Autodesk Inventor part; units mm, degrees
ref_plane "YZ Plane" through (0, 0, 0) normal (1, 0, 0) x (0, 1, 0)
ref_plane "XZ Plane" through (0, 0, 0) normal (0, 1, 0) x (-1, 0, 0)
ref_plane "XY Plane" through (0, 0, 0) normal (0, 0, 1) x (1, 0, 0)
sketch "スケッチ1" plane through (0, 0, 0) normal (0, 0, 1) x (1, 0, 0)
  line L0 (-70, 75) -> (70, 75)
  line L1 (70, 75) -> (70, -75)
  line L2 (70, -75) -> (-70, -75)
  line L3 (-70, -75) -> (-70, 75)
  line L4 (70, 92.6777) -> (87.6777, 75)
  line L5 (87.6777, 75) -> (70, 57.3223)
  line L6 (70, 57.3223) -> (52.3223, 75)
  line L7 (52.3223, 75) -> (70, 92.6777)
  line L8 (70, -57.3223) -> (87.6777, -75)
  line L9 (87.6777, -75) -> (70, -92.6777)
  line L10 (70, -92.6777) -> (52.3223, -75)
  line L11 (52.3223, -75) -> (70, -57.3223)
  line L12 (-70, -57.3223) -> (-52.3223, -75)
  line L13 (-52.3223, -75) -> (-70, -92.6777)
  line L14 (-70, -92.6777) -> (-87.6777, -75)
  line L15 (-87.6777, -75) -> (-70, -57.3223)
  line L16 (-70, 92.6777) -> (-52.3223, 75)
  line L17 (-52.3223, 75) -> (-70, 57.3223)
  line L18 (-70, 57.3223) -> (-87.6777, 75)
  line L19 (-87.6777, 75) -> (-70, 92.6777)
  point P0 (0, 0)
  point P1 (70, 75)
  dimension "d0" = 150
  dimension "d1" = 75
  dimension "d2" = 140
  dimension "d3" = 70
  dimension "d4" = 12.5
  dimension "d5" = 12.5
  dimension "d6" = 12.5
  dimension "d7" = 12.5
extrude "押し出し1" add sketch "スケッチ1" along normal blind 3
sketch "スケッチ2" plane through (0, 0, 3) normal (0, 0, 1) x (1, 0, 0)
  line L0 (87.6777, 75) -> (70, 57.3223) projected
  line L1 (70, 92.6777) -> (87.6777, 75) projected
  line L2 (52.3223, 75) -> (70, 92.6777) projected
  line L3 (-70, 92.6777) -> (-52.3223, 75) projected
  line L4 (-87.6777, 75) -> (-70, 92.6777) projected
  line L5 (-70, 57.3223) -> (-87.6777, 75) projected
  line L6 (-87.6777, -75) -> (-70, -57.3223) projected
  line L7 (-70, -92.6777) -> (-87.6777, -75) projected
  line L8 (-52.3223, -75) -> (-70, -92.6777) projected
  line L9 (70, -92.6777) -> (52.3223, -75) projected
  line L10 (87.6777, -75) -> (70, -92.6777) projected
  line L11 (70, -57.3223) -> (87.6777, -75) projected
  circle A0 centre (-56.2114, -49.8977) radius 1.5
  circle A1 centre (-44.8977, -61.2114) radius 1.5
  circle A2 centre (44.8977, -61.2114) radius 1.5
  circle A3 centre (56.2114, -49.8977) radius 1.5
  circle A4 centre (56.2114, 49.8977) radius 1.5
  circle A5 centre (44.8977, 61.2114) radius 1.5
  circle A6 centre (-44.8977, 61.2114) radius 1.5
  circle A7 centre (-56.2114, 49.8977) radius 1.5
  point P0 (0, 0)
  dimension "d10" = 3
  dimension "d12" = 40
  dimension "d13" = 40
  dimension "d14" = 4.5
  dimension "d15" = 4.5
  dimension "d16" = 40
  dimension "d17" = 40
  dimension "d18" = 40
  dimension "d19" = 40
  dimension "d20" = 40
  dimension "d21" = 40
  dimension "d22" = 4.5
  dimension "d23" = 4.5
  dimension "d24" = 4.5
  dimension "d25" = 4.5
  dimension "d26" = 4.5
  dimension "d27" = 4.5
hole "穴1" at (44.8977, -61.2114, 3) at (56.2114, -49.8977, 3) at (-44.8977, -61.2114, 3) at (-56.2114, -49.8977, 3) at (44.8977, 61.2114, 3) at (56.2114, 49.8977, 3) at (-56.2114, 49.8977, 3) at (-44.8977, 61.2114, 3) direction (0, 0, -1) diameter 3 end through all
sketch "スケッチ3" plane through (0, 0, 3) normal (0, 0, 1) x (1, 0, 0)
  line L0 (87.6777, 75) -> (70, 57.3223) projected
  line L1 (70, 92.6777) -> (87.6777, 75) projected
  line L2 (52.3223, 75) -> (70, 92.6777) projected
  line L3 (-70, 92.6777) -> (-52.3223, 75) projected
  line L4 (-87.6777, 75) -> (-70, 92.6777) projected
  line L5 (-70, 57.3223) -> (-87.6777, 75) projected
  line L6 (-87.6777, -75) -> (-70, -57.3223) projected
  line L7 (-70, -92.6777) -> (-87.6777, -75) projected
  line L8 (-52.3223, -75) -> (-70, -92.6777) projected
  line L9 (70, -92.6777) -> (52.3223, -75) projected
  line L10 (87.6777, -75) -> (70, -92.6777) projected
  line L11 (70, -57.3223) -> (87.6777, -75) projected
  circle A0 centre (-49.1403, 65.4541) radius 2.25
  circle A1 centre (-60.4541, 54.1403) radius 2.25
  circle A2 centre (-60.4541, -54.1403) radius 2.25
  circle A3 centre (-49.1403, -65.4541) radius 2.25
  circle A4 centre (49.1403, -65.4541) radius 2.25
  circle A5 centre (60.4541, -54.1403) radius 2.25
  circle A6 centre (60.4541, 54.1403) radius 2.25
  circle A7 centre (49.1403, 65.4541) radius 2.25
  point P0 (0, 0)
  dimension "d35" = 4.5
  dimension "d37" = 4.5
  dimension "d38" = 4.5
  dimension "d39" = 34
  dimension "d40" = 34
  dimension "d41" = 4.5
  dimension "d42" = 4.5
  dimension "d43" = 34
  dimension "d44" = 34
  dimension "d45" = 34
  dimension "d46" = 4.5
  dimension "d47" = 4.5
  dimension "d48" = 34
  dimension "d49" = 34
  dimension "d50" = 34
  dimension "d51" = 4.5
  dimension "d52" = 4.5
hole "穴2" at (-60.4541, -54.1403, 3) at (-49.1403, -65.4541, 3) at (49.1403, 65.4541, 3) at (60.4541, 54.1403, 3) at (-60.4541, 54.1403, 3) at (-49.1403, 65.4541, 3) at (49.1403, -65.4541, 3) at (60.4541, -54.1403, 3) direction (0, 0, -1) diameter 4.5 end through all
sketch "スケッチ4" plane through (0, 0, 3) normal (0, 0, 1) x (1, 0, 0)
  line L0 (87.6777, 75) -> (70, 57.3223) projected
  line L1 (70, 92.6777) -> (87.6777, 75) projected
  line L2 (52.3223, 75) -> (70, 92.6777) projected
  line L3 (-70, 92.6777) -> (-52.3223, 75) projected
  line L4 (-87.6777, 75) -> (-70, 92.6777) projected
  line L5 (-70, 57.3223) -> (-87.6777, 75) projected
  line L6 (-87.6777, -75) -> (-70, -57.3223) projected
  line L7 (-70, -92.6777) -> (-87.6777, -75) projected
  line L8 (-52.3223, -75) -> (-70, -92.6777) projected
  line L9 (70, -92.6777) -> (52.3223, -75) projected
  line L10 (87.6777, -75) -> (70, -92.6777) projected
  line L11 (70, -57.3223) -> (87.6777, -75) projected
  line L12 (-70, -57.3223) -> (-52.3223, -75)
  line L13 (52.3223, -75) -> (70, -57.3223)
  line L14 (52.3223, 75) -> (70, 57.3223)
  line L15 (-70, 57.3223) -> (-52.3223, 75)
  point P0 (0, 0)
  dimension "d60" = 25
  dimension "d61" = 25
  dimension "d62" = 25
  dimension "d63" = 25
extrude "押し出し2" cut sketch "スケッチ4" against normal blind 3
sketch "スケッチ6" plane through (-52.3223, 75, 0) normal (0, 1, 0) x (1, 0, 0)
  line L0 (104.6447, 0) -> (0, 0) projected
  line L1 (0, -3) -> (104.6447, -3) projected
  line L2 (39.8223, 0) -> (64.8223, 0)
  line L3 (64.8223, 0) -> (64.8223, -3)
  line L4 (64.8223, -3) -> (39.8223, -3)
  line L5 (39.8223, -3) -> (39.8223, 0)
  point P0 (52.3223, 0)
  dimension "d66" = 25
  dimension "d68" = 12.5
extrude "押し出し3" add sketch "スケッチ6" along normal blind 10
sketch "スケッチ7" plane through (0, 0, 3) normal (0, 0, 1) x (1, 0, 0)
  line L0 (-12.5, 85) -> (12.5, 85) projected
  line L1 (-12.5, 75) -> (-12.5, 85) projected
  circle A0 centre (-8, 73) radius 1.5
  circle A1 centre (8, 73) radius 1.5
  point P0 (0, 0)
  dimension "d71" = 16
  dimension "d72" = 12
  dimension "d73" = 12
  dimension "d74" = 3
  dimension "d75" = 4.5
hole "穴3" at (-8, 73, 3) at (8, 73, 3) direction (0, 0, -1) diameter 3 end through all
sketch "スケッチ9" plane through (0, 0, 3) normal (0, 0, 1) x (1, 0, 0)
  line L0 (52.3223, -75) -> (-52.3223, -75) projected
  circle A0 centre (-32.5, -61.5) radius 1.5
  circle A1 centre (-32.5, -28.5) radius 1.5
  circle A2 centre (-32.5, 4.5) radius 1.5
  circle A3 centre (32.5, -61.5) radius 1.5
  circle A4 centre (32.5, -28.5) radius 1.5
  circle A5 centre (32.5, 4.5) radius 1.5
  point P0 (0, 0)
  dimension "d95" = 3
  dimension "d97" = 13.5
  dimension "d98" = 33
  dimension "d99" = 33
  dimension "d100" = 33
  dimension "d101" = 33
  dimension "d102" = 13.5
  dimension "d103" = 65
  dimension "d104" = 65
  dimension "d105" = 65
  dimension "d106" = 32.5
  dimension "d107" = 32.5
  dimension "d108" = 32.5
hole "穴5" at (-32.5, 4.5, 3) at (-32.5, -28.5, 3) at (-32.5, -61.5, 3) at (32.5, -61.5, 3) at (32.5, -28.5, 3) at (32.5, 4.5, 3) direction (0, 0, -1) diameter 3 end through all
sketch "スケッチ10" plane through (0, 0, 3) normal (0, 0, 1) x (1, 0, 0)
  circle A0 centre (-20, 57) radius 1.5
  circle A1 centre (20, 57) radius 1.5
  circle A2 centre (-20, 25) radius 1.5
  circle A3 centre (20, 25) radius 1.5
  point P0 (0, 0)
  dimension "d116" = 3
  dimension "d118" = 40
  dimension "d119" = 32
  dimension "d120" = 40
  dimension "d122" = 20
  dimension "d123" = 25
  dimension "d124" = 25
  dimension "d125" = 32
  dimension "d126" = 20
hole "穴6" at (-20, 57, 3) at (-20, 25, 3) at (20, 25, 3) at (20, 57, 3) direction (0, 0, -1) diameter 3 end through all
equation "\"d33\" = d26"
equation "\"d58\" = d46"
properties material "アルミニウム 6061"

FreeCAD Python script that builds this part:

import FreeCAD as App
import Part
import Sketcher
from FreeCAD import Vector


def add_polygon(sketch, points):
    """Adds a closed chain of lines whose ends are joined by coincident constraints."""
    first, n = sketch.GeometryCount, len(points)
    for a, b in zip(points, points[1:] + points[:1]):
        sketch.addGeometry(Part.LineSegment(App.Vector(*a, 0), App.Vector(*b, 0)), False)
    for i in range(n):
        sketch.addConstraint(Sketcher.Constraint("Coincident", first + i, 2, first + (i + 1) % n, 1))

doc = App.newDocument("Part")
body = doc.addObject("PartDesign::Body", "Body")

# Sketch on XY plane
sketch1 = body.newObject("Sketcher::SketchObject", "Sketch")
sketch1.AttachmentSupport = (doc.getObject("XY_Plane"), [""])
sketch1.MapMode = "FlatFace"
add_polygon(sketch1, [(-88, 75), (-70, 57), (-70, -57), (-88, -75), (-70, -93), (-52, -75), (52, -75), (70, -93), (88, -75), (70, -57), (70, 57), (88, 75), (70, 93), (52, 75), (-52, 75), (-70, 93)])  # lines 0-15
sketch1.addConstraint(Sketcher.Constraint("Vertical", 1))
sketch1.addConstraint(Sketcher.Constraint("Horizontal", 5))
sketch1.addConstraint(Sketcher.Constraint("Vertical", 9))
sketch1.addConstraint(Sketcher.Constraint("Horizontal", 13))
sketch1.addConstraint(Sketcher.Constraint("Symmetric", 0, 2, 8, 2, -1, 1))
sketch1.addConstraint(Sketcher.Constraint("Symmetric", 2, 2, 10, 2, -1, 1))
sketch1.addConstraint(Sketcher.Constraint("Symmetric", 3, 2, 11, 2, -1, 1))
sketch1.addConstraint(Sketcher.Constraint("Symmetric", 4, 2, 12, 2, -1, 1))
sketch1.addConstraint(Sketcher.Constraint("Symmetric", 6, 2, 14, 2, -1, 1))
sketch1.addConstraint(Sketcher.Constraint("Symmetric", 7, 2, 15, 2, -1, 1))
sketch1.addConstraint(Sketcher.Constraint("Symmetric", 3, 2, 6, 2, -2))
sketch1.addConstraint(Sketcher.Constraint("Symmetric", 2, 2, 7, 2, -2))
sketch1.addConstraint(Sketcher.Constraint("Perpendicular", 0, 2))
sketch1.addConstraint(Sketcher.Constraint("Perpendicular", 2, 3))
sketch1.addConstraint(Sketcher.Constraint("Perpendicular", 3, 4))
sketch1.addConstraint(Sketcher.Constraint("Perpendicular", 4, 6))
sketch1.addConstraint(Sketcher.Constraint("Perpendicular", 6, 7))
sketch1.addConstraint(Sketcher.Constraint("Perpendicular", 8, 10))
sketch1.addConstraint(Sketcher.Constraint("Perpendicular", 12, 14))
sketch1.addConstraint(Sketcher.Constraint("Horizontal", 2, 2, 4, 2))
sketch1.addConstraint(Sketcher.Constraint("Vertical", 1, 2, 3, 2))
sketch1.addConstraint(Sketcher.Constraint("DistanceX", 0, 2, -1, 1, 70.0))
sketch1.addConstraint(Sketcher.Constraint("DistanceY", 2, 2, -1, 1, 75.0))
sketch1.addConstraint(Sketcher.Constraint("Distance", 0, 25.0))
pad1 = body.newObject("PartDesign::Pad", "Pad")
pad1.Profile = sketch1
pad1.Length = 3

# Sketch on XY plane
sketch2 = body.newObject("Sketcher::SketchObject", "Sketch001")
sketch2.AttachmentSupport = (doc.getObject("XY_Plane"), [""])
sketch2.MapMode = "FlatFace"
sketch2.AttachmentOffset = App.Placement(Vector(0, 0, 3), App.Rotation())
sketch2.addGeometry(Part.Circle(Vector(44.9, -61.2, 0), Vector(0, 0, 1), 1.5), False)
sketch2.addGeometry(Part.Circle(Vector(56.2, -49.9, 0), Vector(0, 0, 1), 1.5), False)
sketch2.addGeometry(Part.Circle(Vector(-44.9, -61.2, 0), Vector(0, 0, 1), 1.5), False)
sketch2.addGeometry(Part.Circle(Vector(-56.2, -49.9, 0), Vector(0, 0, 1), 1.5), False)
sketch2.addGeometry(Part.Circle(Vector(44.9, 61.2, 0), Vector(0, 0, 1), 1.5), False)
sketch2.addGeometry(Part.Circle(Vector(56.2, 49.9, 0), Vector(0, 0, 1), 1.5), False)
sketch2.addGeometry(Part.Circle(Vector(-56.2, 49.9, 0), Vector(0, 0, 1), 1.5), False)
sketch2.addGeometry(Part.Circle(Vector(-44.9, 61.2, 0), Vector(0, 0, 1), 1.5), False)
sketch2.addConstraint(Sketcher.Constraint("Equal", 0, 1))
sketch2.addConstraint(Sketcher.Constraint("Equal", 1, 2))
sketch2.addConstraint(Sketcher.Constraint("Equal", 2, 3))
sketch2.addConstraint(Sketcher.Constraint("Equal", 3, 4))
sketch2.addConstraint(Sketcher.Constraint("Equal", 4, 5))
sketch2.addConstraint(Sketcher.Constraint("Equal", 5, 6))
sketch2.addConstraint(Sketcher.Constraint("Equal", 6, 7))
sketch2.addConstraint(Sketcher.Constraint("Symmetric", 2, 3, 4, 3, -1, 1))
sketch2.addConstraint(Sketcher.Constraint("Symmetric", 3, 3, 5, 3, -1, 1))
sketch2.addConstraint(Sketcher.Constraint("Symmetric", 1, 3, 6, 3, -1, 1))
sketch2.addConstraint(Sketcher.Constraint("Symmetric", 0, 3, 7, 3, -1, 1))
sketch2.addConstraint(Sketcher.Constraint("Symmetric", 0, 3, 2, 3, -2))
sketch2.addConstraint(Sketcher.Constraint("Symmetric", 1, 3, 3, 3, -2))
sketch2.addConstraint(Sketcher.Constraint("Diameter", 0, 3.0))
sketch2.addConstraint(Sketcher.Constraint("DistanceX", 2, 3, 1, 3, 101.109))
sketch2.addConstraint(Sketcher.Constraint("DistanceY", 1, 3, 4, 3, 111.109))
sketch2.addConstraint(Sketcher.Constraint("DistanceX", -1, 1, 0, 3, 44.8977))
sketch2.addConstraint(Sketcher.Constraint("DistanceY", 0, 3, -1, 1, 61.2114))
doc.recompute()
hole = body.newObject("PartDesign::Hole", "Hole")
hole.Profile = sketch2
hole.ThreadType = "None"
hole.Diameter = 3
hole.DepthType = "ThroughAll"

# Sketch on XY plane
sketch3 = body.newObject("Sketcher::SketchObject", "Sketch002")
sketch3.AttachmentSupport = (doc.getObject("XY_Plane"), [""])
sketch3.MapMode = "FlatFace"
sketch3.AttachmentOffset = App.Placement(Vector(0, 0, 3), App.Rotation())
sketch3.addGeometry(Part.Circle(Vector(-60.5, -54.1, 0), Vector(0, 0, 1), 2.2), False)
sketch3.addGeometry(Part.Circle(Vector(-49.1, -65.5, 0), Vector(0, 0, 1), 2.2), False)
sketch3.addGeometry(Part.Circle(Vector(49.1, 65.5, 0), Vector(0, 0, 1), 2.2), False)
sketch3.addGeometry(Part.Circle(Vector(60.5, 54.1, 0), Vector(0, 0, 1), 2.2), False)
sketch3.addGeometry(Part.Circle(Vector(-60.5, 54.1, 0), Vector(0, 0, 1), 2.2), False)
sketch3.addGeometry(Part.Circle(Vector(-49.1, 65.5, 0), Vector(0, 0, 1), 2.2), False)
sketch3.addGeometry(Part.Circle(Vector(49.1, -65.5, 0), Vector(0, 0, 1), 2.2), False)
sketch3.addGeometry(Part.Circle(Vector(60.5, -54.1, 0), Vector(0, 0, 1), 2.2), False)
sketch3.addConstraint(Sketcher.Constraint("Equal", 0, 1))
sketch3.addConstraint(Sketcher.Constraint("Equal", 1, 2))
sketch3.addConstraint(Sketcher.Constraint("Equal", 2, 3))
sketch3.addConstraint(Sketcher.Constraint("Equal", 3, 4))
sketch3.addConstraint(Sketcher.Constraint("Equal", 4, 5))
sketch3.addConstraint(Sketcher.Constraint("Equal", 5, 6))
sketch3.addConstraint(Sketcher.Constraint("Equal", 6, 7))
sketch3.addConstraint(Sketcher.Constraint("Symmetric", 1, 3, 2, 3, -1, 1))
sketch3.addConstraint(Sketcher.Constraint("Symmetric", 0, 3, 3, 3, -1, 1))
sketch3.addConstraint(Sketcher.Constraint("Symmetric", 5, 3, 6, 3, -1, 1))
sketch3.addConstraint(Sketcher.Constraint("Symmetric", 4, 3, 7, 3, -1, 1))
sketch3.addConstraint(Sketcher.Constraint("Symmetric", 3, 3, 4, 3, -2))
sketch3.addConstraint(Sketcher.Constraint("Symmetric", 2, 3, 5, 3, -2))
sketch3.addConstraint(Sketcher.Constraint("Diameter", 0, 4.5))
sketch3.addConstraint(Sketcher.Constraint("DistanceX", 0, 3, -1, 1, 60.454))
sketch3.addConstraint(Sketcher.Constraint("DistanceY", 1, 3, -1, 1, 65.454))
sketch3.addConstraint(Sketcher.Constraint("DistanceY", 0, 3, -1, 1, 54.1403))
sketch3.addConstraint(Sketcher.Constraint("DistanceX", 1, 3, -1, 1, 49.1403))
doc.recompute()
hole2 = body.newObject("PartDesign::Hole", "Hole001")
hole2.Profile = sketch3
hole2.ThreadType = "None"
hole2.Diameter = 4.5
hole2.DepthType = "ThroughAll"

# Sketch on XY plane
sketch4 = body.newObject("Sketcher::SketchObject", "Sketch003")
sketch4.AttachmentSupport = (doc.getObject("XY_Plane"), [""])
sketch4.MapMode = "FlatFace"
sketch4.AttachmentOffset = App.Placement(Vector(0, 0, 3), App.Rotation())
add_polygon(sketch4, [(70, 57), (88, 75), (70, 93), (52, 75)])  # lines 0-3
add_polygon(sketch4, [(-52, 75), (-70, 93), (-88, 75), (-70, 57)])  # lines 4-7
add_polygon(sketch4, [(-70, -57), (-88, -75), (-70, -93), (-52, -75)])  # lines 8-11
add_polygon(sketch4, [(52, -75), (70, -93), (88, -75), (70, -57)])  # lines 12-15
sketch4.addConstraint(Sketcher.Constraint("Symmetric", 0, 2, 8, 2, -1, 1))
sketch4.addConstraint(Sketcher.Constraint("Symmetric", 1, 2, 9, 2, -1, 1))
sketch4.addConstraint(Sketcher.Constraint("Symmetric", 2, 2, 10, 2, -1, 1))
sketch4.addConstraint(Sketcher.Constraint("Symmetric", 3, 2, 11, 2, -1, 1))
sketch4.addConstraint(Sketcher.Constraint("Symmetric", 4, 2, 12, 2, -1, 1))
sketch4.addConstraint(Sketcher.Constraint("Symmetric", 5, 2, 13, 2, -1, 1))
sketch4.addConstraint(Sketcher.Constraint("Symmetric", 6, 2, 14, 2, -1, 1))
sketch4.addConstraint(Sketcher.Constraint("Symmetric", 7, 2, 15, 2, -1, 1))
sketch4.addConstraint(Sketcher.Constraint("Symmetric", 1, 2, 4, 2, -2))
sketch4.addConstraint(Sketcher.Constraint("Symmetric", 0, 2, 5, 2, -2))
sketch4.addConstraint(Sketcher.Constraint("Symmetric", 3, 2, 6, 2, -2))
sketch4.addConstraint(Sketcher.Constraint("Symmetric", 2, 2, 7, 2, -2))
sketch4.addConstraint(Sketcher.Constraint("Perpendicular", 0, 1))
sketch4.addConstraint(Sketcher.Constraint("Perpendicular", 1, 2))
sketch4.addConstraint(Sketcher.Constraint("Perpendicular", 2, 3))
sketch4.addConstraint(Sketcher.Constraint("Parallel", 3, 4))
sketch4.addConstraint(Sketcher.Constraint("Horizontal", 0, 2, 2, 2))
sketch4.addConstraint(Sketcher.Constraint("Distance", 0, 25.0))
sketch4.addConstraint(Sketcher.Constraint("DistanceY", -1, 1, 0, 2, 75.0))
sketch4.addConstraint(Sketcher.Constraint("DistanceX", -1, 1, 1, 2, 70.0))
pocket1 = body.newObject("PartDesign::Pocket", "Pocket")
pocket1.Profile = sketch4
pocket1.Length = 3

# Sketch on XZ plane
sketch5 = body.newObject("Sketcher::SketchObject", "Sketch004")
sketch5.AttachmentSupport = (doc.getObject("XZ_Plane"), [""])
sketch5.MapMode = "FlatFace"
sketch5.AttachmentOffset = App.Placement(Vector(0, 0, -75), App.Rotation())
add_polygon(sketch5, [(12.5, 3), (12.5, 0), (-12.5, 0), (-12.5, 3)])  # lines 0-3
sketch5.addConstraint(Sketcher.Constraint("Vertical", 0))
sketch5.addConstraint(Sketcher.Constraint("Horizontal", 1))
sketch5.addConstraint(Sketcher.Constraint("Vertical", 2))
sketch5.addConstraint(Sketcher.Constraint("Horizontal", 3))
sketch5.addConstraint(Sketcher.Constraint("Symmetric", 0, 2, 1, 2, -1, 1))
sketch5.addConstraint(Sketcher.Constraint("DistanceX", 1, 2, 1, 1, 25.0))
sketch5.addConstraint(Sketcher.Constraint("DistanceY", 0, 2, 0, 1, 3.0))
pad2 = body.newObject("PartDesign::Pad", "Pad001")
pad2.Profile = sketch5
pad2.Length = 10
pad2.Reversed = True

# Sketch on XY plane
sketch6 = body.newObject("Sketcher::SketchObject", "Sketch005")
sketch6.AttachmentSupport = (doc.getObject("XY_Plane"), [""])
sketch6.MapMode = "FlatFace"
sketch6.AttachmentOffset = App.Placement(Vector(0, 0, 3), App.Rotation())
sketch6.addGeometry(Part.Circle(Vector(-8, 73, 0), Vector(0, 0, 1), 1.5), False)
sketch6.addGeometry(Part.Circle(Vector(8, 73, 0), Vector(0, 0, 1), 1.5), False)
sketch6.addConstraint(Sketcher.Constraint("Equal", 0, 1))
sketch6.addConstraint(Sketcher.Constraint("Symmetric", 0, 3, 1, 3, -2))
sketch6.addConstraint(Sketcher.Constraint("Diameter", 0, 3.0))
sketch6.addConstraint(Sketcher.Constraint("DistanceX", 0, 3, -1, 1, 8.0))
sketch6.addConstraint(Sketcher.Constraint("DistanceY", -1, 1, 0, 3, 73.0))
doc.recompute()
hole3 = body.newObject("PartDesign::Hole", "Hole002")
hole3.Profile = sketch6
hole3.ThreadType = "None"
hole3.Diameter = 3
hole3.DepthType = "ThroughAll"

# Sketch on XY plane
sketch7 = body.newObject("Sketcher::SketchObject", "Sketch006")
sketch7.AttachmentSupport = (doc.getObject("XY_Plane"), [""])
sketch7.MapMode = "FlatFace"
sketch7.AttachmentOffset = App.Placement(Vector(0, 0, 3), App.Rotation())
sketch7.addGeometry(Part.Circle(Vector(-32.5, 4.5, 0), Vector(0, 0, 1), 1.5), False)
sketch7.addGeometry(Part.Circle(Vector(-32.5, -28.5, 0), Vector(0, 0, 1), 1.5), False)
sketch7.addGeometry(Part.Circle(Vector(-32.5, -61.5, 0), Vector(0, 0, 1), 1.5), False)
sketch7.addGeometry(Part.Circle(Vector(32.5, -61.5, 0), Vector(0, 0, 1), 1.5), False)
sketch7.addGeometry(Part.Circle(Vector(32.5, -28.5, 0), Vector(0, 0, 1), 1.5), False)
sketch7.addGeometry(Part.Circle(Vector(32.5, 4.5, 0), Vector(0, 0, 1), 1.5), False)
sketch7.addConstraint(Sketcher.Constraint("Equal", 0, 1))
sketch7.addConstraint(Sketcher.Constraint("Equal", 1, 2))
sketch7.addConstraint(Sketcher.Constraint("Equal", 2, 3))
sketch7.addConstraint(Sketcher.Constraint("Equal", 3, 4))
sketch7.addConstraint(Sketcher.Constraint("Equal", 4, 5))
sketch7.addConstraint(Sketcher.Constraint("Symmetric", 2, 3, 3, 3, -2))
sketch7.addConstraint(Sketcher.Constraint("Symmetric", 1, 3, 4, 3, -2))
sketch7.addConstraint(Sketcher.Constraint("Symmetric", 0, 3, 5, 3, -2))
sketch7.addConstraint(Sketcher.Constraint("Vertical", 0, 3, 1, 3))
sketch7.addConstraint(Sketcher.Constraint("Vertical", 1, 3, 2, 3))
sketch7.addConstraint(Sketcher.Constraint("Diameter", 0, 3.0))
sketch7.addConstraint(Sketcher.Constraint("DistanceY", 1, 3, 0, 3, 33.0))
sketch7.addConstraint(Sketcher.Constraint("DistanceY", 2, 3, 1, 3, 33.0))
sketch7.addConstraint(Sketcher.Constraint("DistanceX", 2, 3, 3, 3, 65.0))
sketch7.addConstraint(Sketcher.Constraint("DistanceY", -1, 1, 0, 3, 4.5))
doc.recompute()
hole4 = body.newObject("PartDesign::Hole", "Hole003")
hole4.Profile = sketch7
hole4.ThreadType = "None"
hole4.Diameter = 3
hole4.DepthType = "ThroughAll"

# Sketch on XY plane
sketch8 = body.newObject("Sketcher::SketchObject", "Sketch007")
sketch8.AttachmentSupport = (doc.getObject("XY_Plane"), [""])
sketch8.MapMode = "FlatFace"
sketch8.AttachmentOffset = App.Placement(Vector(0, 0, 3), App.Rotation())
sketch8.addGeometry(Part.Circle(Vector(-20, 57, 0), Vector(0, 0, 1), 1.5), False)
sketch8.addGeometry(Part.Circle(Vector(-20, 25, 0), Vector(0, 0, 1), 1.5), False)
sketch8.addGeometry(Part.Circle(Vector(20, 25, 0), Vector(0, 0, 1), 1.5), False)
sketch8.addGeometry(Part.Circle(Vector(20, 57, 0), Vector(0, 0, 1), 1.5), False)
sketch8.addConstraint(Sketcher.Constraint("Equal", 0, 1))
sketch8.addConstraint(Sketcher.Constraint("Equal", 1, 2))
sketch8.addConstraint(Sketcher.Constraint("Equal", 2, 3))
sketch8.addConstraint(Sketcher.Constraint("Symmetric", 1, 3, 2, 3, -2))
sketch8.addConstraint(Sketcher.Constraint("Symmetric", 0, 3, 3, 3, -2))
sketch8.addConstraint(Sketcher.Constraint("Vertical", 0, 3, 1, 3))
sketch8.addConstraint(Sketcher.Constraint("Diameter", 0, 3.0))
sketch8.addConstraint(Sketcher.Constraint("DistanceX", 0, 3, -1, 1, 20.0))
sketch8.addConstraint(Sketcher.Constraint("DistanceY", -1, 1, 0, 3, 57.0))
sketch8.addConstraint(Sketcher.Constraint("DistanceY", -1, 1, 1, 3, 25.0))
doc.recompute()
hole5 = body.newObject("PartDesign::Hole", "Hole004")
hole5.Profile = sketch8
hole5.ThreadType = "None"
hole5.Diameter = 3
hole5.DepthType = "ThroughAll"

doc.recompute()
